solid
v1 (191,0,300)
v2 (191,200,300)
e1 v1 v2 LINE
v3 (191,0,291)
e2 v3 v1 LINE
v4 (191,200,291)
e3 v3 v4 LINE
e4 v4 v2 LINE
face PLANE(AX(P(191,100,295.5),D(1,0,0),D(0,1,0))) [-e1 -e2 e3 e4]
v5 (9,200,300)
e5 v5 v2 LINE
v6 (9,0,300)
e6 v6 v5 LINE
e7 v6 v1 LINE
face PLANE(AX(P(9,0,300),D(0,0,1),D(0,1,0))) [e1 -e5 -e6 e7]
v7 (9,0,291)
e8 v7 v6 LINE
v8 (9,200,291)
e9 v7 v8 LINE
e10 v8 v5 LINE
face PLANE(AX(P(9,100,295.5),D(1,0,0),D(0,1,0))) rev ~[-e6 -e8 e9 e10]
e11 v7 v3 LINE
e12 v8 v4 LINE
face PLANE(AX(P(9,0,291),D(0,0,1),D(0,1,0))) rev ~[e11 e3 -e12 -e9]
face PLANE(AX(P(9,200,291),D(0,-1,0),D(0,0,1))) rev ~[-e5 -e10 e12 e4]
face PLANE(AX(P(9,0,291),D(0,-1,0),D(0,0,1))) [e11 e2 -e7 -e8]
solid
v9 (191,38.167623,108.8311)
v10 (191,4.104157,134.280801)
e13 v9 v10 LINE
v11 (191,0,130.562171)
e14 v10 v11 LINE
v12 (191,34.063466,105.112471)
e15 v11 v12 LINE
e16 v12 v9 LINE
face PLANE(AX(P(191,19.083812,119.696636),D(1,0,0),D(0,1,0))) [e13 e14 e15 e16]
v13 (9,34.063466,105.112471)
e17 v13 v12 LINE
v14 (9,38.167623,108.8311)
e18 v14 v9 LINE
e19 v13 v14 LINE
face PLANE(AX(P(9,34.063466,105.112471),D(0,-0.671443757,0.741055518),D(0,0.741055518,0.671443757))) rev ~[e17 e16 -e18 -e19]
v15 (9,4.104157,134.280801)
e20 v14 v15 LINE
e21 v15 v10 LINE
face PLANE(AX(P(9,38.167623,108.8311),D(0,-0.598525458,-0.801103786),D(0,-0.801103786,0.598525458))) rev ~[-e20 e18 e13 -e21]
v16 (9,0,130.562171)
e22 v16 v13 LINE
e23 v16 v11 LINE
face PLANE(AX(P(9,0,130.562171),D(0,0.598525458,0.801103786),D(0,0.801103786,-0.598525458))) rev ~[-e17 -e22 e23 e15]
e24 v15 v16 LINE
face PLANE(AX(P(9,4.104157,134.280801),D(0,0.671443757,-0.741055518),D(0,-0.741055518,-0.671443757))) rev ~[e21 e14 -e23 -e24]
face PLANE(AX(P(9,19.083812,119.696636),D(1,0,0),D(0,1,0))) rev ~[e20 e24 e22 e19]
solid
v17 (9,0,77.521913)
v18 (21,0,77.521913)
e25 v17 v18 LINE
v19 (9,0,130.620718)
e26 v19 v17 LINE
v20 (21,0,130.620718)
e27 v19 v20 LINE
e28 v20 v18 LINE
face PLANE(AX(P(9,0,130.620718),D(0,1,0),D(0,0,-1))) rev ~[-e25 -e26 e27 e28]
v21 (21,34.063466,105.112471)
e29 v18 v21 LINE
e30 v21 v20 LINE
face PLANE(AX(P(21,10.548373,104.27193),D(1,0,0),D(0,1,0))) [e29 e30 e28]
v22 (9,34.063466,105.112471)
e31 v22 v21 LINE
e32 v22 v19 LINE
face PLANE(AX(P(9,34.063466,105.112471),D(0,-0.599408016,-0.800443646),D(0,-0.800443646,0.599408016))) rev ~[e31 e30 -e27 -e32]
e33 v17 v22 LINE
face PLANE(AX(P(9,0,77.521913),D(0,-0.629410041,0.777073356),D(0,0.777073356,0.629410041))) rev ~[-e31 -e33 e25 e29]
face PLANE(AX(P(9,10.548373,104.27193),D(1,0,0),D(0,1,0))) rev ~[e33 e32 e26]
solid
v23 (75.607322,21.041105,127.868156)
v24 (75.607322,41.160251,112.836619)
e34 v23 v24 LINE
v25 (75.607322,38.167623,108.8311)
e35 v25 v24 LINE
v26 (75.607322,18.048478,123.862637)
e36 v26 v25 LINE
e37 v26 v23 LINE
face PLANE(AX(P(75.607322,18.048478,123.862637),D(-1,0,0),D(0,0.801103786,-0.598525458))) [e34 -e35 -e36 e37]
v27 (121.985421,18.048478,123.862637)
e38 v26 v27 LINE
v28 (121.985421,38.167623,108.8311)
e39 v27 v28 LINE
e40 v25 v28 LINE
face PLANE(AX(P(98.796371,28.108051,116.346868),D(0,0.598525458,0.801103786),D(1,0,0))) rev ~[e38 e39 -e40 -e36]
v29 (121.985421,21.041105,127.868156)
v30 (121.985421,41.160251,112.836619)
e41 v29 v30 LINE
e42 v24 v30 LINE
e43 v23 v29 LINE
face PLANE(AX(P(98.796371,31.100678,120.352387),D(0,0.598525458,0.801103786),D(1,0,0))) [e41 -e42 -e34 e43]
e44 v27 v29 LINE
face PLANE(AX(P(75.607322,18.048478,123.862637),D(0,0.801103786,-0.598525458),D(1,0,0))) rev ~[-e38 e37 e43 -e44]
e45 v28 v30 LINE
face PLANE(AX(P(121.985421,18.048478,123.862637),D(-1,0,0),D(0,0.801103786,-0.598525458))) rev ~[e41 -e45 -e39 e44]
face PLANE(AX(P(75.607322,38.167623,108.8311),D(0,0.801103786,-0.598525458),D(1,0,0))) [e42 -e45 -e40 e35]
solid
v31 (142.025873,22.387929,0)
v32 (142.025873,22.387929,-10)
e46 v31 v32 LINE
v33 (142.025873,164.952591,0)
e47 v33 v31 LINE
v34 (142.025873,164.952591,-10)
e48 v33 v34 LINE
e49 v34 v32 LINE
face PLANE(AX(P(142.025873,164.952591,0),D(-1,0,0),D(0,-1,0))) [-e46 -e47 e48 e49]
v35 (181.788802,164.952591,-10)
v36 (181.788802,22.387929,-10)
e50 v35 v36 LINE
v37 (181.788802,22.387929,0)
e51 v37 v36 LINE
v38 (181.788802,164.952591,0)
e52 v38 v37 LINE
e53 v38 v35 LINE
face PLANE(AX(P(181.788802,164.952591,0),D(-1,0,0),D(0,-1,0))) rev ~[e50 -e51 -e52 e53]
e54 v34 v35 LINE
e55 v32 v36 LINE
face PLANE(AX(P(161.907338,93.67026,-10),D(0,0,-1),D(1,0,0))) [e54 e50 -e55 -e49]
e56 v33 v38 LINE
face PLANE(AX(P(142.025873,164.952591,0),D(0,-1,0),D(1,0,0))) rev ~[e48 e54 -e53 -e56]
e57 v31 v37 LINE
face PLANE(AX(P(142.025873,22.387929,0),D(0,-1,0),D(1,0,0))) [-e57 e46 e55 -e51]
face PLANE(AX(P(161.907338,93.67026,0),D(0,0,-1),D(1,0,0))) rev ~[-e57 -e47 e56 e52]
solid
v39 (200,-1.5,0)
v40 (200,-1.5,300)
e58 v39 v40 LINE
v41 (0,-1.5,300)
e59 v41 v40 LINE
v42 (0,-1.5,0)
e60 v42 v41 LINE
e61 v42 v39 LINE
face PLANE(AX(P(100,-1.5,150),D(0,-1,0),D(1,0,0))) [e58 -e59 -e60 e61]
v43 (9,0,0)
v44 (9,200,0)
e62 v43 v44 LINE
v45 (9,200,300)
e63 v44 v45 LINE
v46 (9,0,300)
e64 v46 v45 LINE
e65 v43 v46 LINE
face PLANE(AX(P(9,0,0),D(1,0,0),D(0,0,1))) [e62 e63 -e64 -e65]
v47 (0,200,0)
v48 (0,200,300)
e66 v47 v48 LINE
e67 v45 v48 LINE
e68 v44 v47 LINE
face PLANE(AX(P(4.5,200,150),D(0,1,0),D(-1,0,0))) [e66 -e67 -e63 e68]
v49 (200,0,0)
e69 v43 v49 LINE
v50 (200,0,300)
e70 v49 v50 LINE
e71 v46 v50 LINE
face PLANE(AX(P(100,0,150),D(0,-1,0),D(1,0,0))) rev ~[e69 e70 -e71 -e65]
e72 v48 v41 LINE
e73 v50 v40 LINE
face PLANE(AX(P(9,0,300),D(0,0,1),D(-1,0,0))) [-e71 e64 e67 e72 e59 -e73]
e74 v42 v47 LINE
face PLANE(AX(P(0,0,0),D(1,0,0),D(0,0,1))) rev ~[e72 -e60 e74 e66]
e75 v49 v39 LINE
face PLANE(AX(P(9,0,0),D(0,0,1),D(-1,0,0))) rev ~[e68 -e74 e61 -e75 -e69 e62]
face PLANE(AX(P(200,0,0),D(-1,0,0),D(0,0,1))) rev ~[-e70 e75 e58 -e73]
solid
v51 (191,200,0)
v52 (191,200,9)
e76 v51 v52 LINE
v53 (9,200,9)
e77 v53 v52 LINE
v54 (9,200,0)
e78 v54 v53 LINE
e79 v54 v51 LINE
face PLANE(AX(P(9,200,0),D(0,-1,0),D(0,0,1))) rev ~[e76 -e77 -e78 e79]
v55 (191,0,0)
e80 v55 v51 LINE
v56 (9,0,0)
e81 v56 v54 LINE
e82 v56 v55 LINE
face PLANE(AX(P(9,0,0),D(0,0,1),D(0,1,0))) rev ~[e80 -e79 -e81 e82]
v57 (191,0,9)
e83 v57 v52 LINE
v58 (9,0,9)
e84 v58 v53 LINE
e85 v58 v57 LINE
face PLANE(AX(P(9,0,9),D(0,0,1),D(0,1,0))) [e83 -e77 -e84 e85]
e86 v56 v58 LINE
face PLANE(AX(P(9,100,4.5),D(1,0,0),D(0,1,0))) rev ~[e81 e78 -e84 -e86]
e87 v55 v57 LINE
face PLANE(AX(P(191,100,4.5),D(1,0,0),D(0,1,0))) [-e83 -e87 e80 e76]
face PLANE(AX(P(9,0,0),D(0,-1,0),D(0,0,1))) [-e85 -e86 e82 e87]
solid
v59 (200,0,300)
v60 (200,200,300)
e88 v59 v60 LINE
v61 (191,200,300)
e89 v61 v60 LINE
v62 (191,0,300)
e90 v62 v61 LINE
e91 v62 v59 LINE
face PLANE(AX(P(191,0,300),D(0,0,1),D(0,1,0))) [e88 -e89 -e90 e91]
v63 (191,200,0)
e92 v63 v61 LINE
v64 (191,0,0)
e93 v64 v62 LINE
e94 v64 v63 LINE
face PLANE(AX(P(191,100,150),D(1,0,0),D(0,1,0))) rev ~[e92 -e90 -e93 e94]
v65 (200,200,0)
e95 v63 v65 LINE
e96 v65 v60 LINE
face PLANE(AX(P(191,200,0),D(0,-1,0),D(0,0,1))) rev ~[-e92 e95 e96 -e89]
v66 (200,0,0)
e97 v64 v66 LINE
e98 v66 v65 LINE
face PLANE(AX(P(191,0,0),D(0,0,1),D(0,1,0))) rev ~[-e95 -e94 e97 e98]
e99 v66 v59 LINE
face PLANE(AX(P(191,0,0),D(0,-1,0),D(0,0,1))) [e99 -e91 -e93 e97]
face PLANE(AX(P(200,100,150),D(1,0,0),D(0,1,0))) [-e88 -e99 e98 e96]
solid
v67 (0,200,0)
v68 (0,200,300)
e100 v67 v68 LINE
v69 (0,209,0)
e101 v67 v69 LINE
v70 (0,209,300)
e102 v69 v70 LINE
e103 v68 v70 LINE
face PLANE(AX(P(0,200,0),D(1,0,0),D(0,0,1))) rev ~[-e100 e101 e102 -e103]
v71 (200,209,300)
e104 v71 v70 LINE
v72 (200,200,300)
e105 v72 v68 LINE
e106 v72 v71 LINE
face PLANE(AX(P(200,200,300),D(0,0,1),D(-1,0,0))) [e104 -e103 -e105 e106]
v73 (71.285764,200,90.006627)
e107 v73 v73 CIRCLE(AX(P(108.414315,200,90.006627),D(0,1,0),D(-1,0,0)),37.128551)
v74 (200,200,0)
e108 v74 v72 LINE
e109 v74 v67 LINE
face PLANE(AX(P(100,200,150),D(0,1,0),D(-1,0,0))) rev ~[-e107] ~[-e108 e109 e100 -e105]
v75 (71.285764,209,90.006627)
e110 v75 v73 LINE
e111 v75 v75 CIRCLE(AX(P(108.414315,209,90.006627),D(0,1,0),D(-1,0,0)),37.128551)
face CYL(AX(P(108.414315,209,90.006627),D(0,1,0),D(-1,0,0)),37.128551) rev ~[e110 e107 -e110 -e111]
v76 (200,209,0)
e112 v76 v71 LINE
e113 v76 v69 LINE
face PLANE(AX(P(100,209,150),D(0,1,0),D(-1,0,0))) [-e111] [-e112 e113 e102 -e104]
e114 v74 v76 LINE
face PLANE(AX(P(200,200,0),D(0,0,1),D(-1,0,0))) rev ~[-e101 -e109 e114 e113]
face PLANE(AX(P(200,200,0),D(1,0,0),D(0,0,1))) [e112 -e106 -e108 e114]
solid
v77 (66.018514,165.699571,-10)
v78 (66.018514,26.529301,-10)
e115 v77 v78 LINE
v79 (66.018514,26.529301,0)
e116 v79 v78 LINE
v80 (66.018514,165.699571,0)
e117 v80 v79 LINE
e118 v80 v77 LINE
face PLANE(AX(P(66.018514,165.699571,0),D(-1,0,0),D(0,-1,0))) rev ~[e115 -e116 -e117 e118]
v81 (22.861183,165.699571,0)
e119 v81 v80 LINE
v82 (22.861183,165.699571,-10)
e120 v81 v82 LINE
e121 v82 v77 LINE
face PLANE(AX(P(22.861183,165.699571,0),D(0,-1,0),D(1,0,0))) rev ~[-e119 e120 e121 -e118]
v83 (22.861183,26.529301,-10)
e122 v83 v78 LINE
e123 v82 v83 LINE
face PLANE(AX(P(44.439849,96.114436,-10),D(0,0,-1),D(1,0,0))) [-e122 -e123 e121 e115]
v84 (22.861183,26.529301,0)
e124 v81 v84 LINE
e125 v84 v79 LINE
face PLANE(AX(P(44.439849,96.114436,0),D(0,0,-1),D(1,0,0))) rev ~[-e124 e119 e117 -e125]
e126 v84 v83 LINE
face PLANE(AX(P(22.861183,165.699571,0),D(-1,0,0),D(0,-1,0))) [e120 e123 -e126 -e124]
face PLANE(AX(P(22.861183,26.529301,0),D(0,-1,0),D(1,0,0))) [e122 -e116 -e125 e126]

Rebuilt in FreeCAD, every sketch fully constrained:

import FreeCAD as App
import Part
import Sketcher
Q = App.Units.Quantity


def add_polygon(sketch, points):
    """Adds a closed chain of lines whose ends are joined by coincident constraints."""
    first, n = sketch.GeometryCount, len(points)
    for a, b in zip(points, points[1:] + points[:1]):
        sketch.addGeometry(Part.LineSegment(App.Vector(*a, 0), App.Vector(*b, 0)), False)
    for i in range(n):
        sketch.addConstraint(Sketcher.Constraint("Coincident", first + i, 2, first + (i + 1) % n, 1))

doc = App.newDocument("Part")
body = doc.addObject("PartDesign::Body", "Body")

# Sketch on XZ plane
sketch1 = doc.addObject("Sketcher::SketchObject", "Sketch")
body.addObject(sketch1)
sketch1.AttachmentSupport = (doc.XZ_Plane, [""])
sketch1.MapMode = "FlatFace"
add_polygon(sketch1, [(0, 300), (0, 0), (200, 0), (200, 300)])  # lines 0-3
sketch1.addConstraint(Sketcher.Constraint("Vertical", 0))
sketch1.addConstraint(Sketcher.Constraint("Horizontal", 1))
sketch1.addConstraint(Sketcher.Constraint("Vertical", 2))
sketch1.addConstraint(Sketcher.Constraint("Horizontal", 3))
sketch1.addConstraint(Sketcher.Constraint("Coincident", 0, 2, -1, 1))
sketch1.addConstraint(Sketcher.Constraint("DistanceX", 1, 1, 1, 2, Q("200 mm")))
sketch1.addConstraint(Sketcher.Constraint("DistanceY", 0, 2, 0, 1, Q("300 mm")))
pad1 = doc.addObject("PartDesign::Pad", "Pad")
body.addObject(pad1)
pad1.Profile = sketch1
pad1.Length = 1.5

# Sketch on XZ plane
sketch2 = doc.addObject("Sketcher::SketchObject", "Sketch001")
body.addObject(sketch2)
sketch2.AttachmentSupport = (doc.XZ_Plane, [""])
sketch2.MapMode = "FlatFace"
add_polygon(sketch2, [(9, 300), (9, 0), (0, 0), (0, 300)])  # lines 0-3
sketch2.addConstraint(Sketcher.Constraint("Vertical", 0))
sketch2.addConstraint(Sketcher.Constraint("Horizontal", 1))
sketch2.addConstraint(Sketcher.Constraint("Vertical", 2))
sketch2.addConstraint(Sketcher.Constraint("Horizontal", 3))
sketch2.addConstraint(Sketcher.Constraint("Coincident", 1, 2, -1, 1))
sketch2.addConstraint(Sketcher.Constraint("DistanceX", 1, 2, 1, 1, Q("9 mm")))
sketch2.addConstraint(Sketcher.Constraint("DistanceY", 0, 2, 0, 1, Q("300 mm")))
pad2 = doc.addObject("PartDesign::Pad", "Pad001")
body.addObject(pad2)
pad2.Profile = sketch2
pad2.Length = 200
pad2.Reversed = True
body2 = doc.addObject("PartDesign::Body", "Body001")

# Sketch on YZ plane
sketch3 = doc.addObject("Sketcher::SketchObject", "Sketch002")
body2.addObject(sketch3)
sketch3.AttachmentSupport = (doc.getObject("YZ_Plane001"), [""])
sketch3.MapMode = "FlatFace"
sketch3.AttachmentOffset = App.Placement(App.Vector(0, 0, 9), App.Rotation())
add_polygon(sketch3, [(34, 105), (0, 131), (0, 78)])  # lines 0-2
sketch3.addConstraint(Sketcher.Constraint("Vertical", 1))
sketch3.addConstraint(Sketcher.Constraint("PointOnObject", 0, 2, -2))
sketch3.addConstraint(Sketcher.Constraint("DistanceY", 1, 2, 1, 1, Q("53.098805 mm")))
sketch3.addConstraint(Sketcher.Constraint("DistanceY", -1, 1, 0, 2, Q("130.620718 mm")))
sketch3.addConstraint(Sketcher.Constraint("DistanceY", -1, 1, 2, 2, Q("105.112471 mm")))
sketch3.addConstraint(Sketcher.Constraint("Distance", 0, Q("42.555733 mm")))
pad3 = doc.addObject("PartDesign::Pad", "Pad002")
body2.addObject(pad3)
pad3.Profile = sketch3
pad3.Length = 12
body3 = doc.addObject("PartDesign::Body", "Body002")

# Sketch on YZ plane
sketch4 = doc.addObject("Sketcher::SketchObject", "Sketch003")
body3.addObject(sketch4)
sketch4.AttachmentSupport = (doc.getObject("YZ_Plane002"), [""])
sketch4.MapMode = "FlatFace"
sketch4.AttachmentOffset = App.Placement(App.Vector(0, 0, 9), App.Rotation())
add_polygon(sketch4, [(0, 131), (34, 105), (38, 109), (4, 134)])  # lines 0-3
sketch4.addConstraint(Sketcher.Constraint("PointOnObject", 3, 2, -2))
sketch4.addConstraint(Sketcher.Constraint("Parallel", 0, 2))
sketch4.addConstraint(Sketcher.Constraint("Parallel", 1, 3))
sketch4.addConstraint(Sketcher.Constraint("DistanceY", -1, 1, 1, 2, Q("108.8311 mm")))
sketch4.addConstraint(Sketcher.Constraint("DistanceY", -1, 1, 2, 2, Q("134.280801 mm")))
sketch4.addConstraint(Sketcher.Constraint("Distance", 1, Q("5.538259 mm")))
sketch4.addConstraint(Sketcher.Constraint("DistanceY", -1, 1, 0, 2, Q("105.112471 mm")))
sketch4.addConstraint(Sketcher.Constraint("DistanceX", 2, 2, 0, 2, Q("29.959308 mm")))
pad4 = doc.addObject("PartDesign::Pad", "Pad003")
body3.addObject(pad4)
pad4.Profile = sketch4
pad4.Length = 182
body4 = doc.addObject("PartDesign::Body", "Body003")

# Sketch on an angled plane
sketch5 = doc.addObject("Sketcher::SketchObject", "Sketch004")
body4.addObject(sketch5)
sketch5.Placement = App.Placement(App.Vector(0, 65.855338, 88.144889), App.Rotation(App.Vector(1, 0, 0), App.Vector(0, 0.801103786, -0.598525458), App.Vector(0, 0.598525458, 0.801103786), "ZXY"))
add_polygon(sketch5, [(76, -35), (76, -60), (122, -60), (122, -35)])  # lines 0-3
sketch5.addConstraint(Sketcher.Constraint("Vertical", 0))
sketch5.addConstraint(Sketcher.Constraint("Horizontal", 1))
sketch5.addConstraint(Sketcher.Constraint("Vertical", 2))
sketch5.addConstraint(Sketcher.Constraint("Horizontal", 3))
sketch5.addConstraint(Sketcher.Constraint("DistanceX", 1, 1, 1, 2, Q("46.378098 mm")))
sketch5.addConstraint(Sketcher.Constraint("DistanceY", 0, 2, 0, 1, Q("25.114281 mm")))
sketch5.addConstraint(Sketcher.Constraint("DistanceX", -1, 1, 1, 2, Q("121.985421 mm")))
sketch5.addConstraint(Sketcher.Constraint("DistanceY", 0, 2, -1, 1, Q("59.676237 mm")))
pad5 = doc.addObject("PartDesign::Pad", "Pad004")
body4.addObject(pad5)
pad5.Profile = sketch5
pad5.Length = 5
body5 = doc.addObject("PartDesign::Body", "Body004")

# Sketch on YZ plane
sketch6 = doc.addObject("Sketcher::SketchObject", "Sketch005")
body5.addObject(sketch6)
sketch6.AttachmentSupport = (doc.getObject("YZ_Plane004"), [""])
sketch6.MapMode = "FlatFace"
sketch6.AttachmentOffset = App.Placement(App.Vector(0, 0, 9), App.Rotation())
add_polygon(sketch6, [(0, 300), (0, 291), (200, 291), (200, 300)])  # lines 0-3
sketch6.addConstraint(Sketcher.Constraint("Vertical", 0))
sketch6.addConstraint(Sketcher.Constraint("Horizontal", 1))
sketch6.addConstraint(Sketcher.Constraint("Vertical", 2))
sketch6.addConstraint(Sketcher.Constraint("Horizontal", 3))
sketch6.addConstraint(Sketcher.Constraint("PointOnObject", 0, 2, -2))
sketch6.addConstraint(Sketcher.Constraint("DistanceX", 1, 1, 1, 2, Q("200 mm")))
sketch6.addConstraint(Sketcher.Constraint("DistanceY", 0, 2, 0, 1, Q("9 mm")))
sketch6.addConstraint(Sketcher.Constraint("DistanceY", -1, 1, 0, 2, Q("291 mm")))
pad6 = doc.addObject("PartDesign::Pad", "Pad005")
body5.addObject(pad6)
pad6.Profile = sketch6
pad6.Length = 182
body6 = doc.addObject("PartDesign::Body", "Body005")

# Sketch on YZ plane
sketch7 = doc.addObject("Sketcher::SketchObject", "Sketch006")
body6.addObject(sketch7)
sketch7.AttachmentSupport = (doc.getObject("YZ_Plane005"), [""])
sketch7.MapMode = "FlatFace"
sketch7.AttachmentOffset = App.Placement(App.Vector(0, 0, 9), App.Rotation())
add_polygon(sketch7, [(0, 9), (0, 0), (200, 0), (200, 9)])  # lines 0-3
sketch7.addConstraint(Sketcher.Constraint("Vertical", 0))
sketch7.addConstraint(Sketcher.Constraint("Horizontal", 1))
sketch7.addConstraint(Sketcher.Constraint("Vertical", 2))
sketch7.addConstraint(Sketcher.Constraint("Horizontal", 3))
sketch7.addConstraint(Sketcher.Constraint("Coincident", 0, 2, -1, 1))
sketch7.addConstraint(Sketcher.Constraint("DistanceX", 1, 1, 1, 2, Q("200 mm")))
sketch7.addConstraint(Sketcher.Constraint("DistanceY", 0, 2, 0, 1, Q("9 mm")))
pad7 = doc.addObject("PartDesign::Pad", "Pad006")
body6.addObject(pad7)
pad7.Profile = sketch7
pad7.Length = 182
body7 = doc.addObject("PartDesign::Body", "Body006")

# Sketch on YZ plane
sketch8 = doc.addObject("Sketcher::SketchObject", "Sketch007")
body7.addObject(sketch8)
sketch8.AttachmentSupport = (doc.getObject("YZ_Plane006"), [""])
sketch8.MapMode = "FlatFace"
sketch8.AttachmentOffset = App.Placement(App.Vector(0, 0, 191), App.Rotation())
add_polygon(sketch8, [(0, 300), (0, 0), (200, 0), (200, 300)])  # lines 0-3
sketch8.addConstraint(Sketcher.Constraint("Vertical", 0))
sketch8.addConstraint(Sketcher.Constraint("Horizontal", 1))
sketch8.addConstraint(Sketcher.Constraint("Vertical", 2))
sketch8.addConstraint(Sketcher.Constraint("Horizontal", 3))
sketch8.addConstraint(Sketcher.Constraint("Coincident", 0, 2, -1, 1))
sketch8.addConstraint(Sketcher.Constraint("DistanceX", 1, 1, 1, 2, Q("200 mm")))
sketch8.addConstraint(Sketcher.Constraint("DistanceY", 0, 2, 0, 1, Q("300 mm")))
pad8 = doc.addObject("PartDesign::Pad", "Pad007")
body7.addObject(pad8)
pad8.Profile = sketch8
pad8.Length = 9
body8 = doc.addObject("PartDesign::Body", "Body007")

# Sketch on XZ plane
sketch9 = doc.addObject("Sketcher::SketchObject", "Sketch008")
body8.addObject(sketch9)
sketch9.AttachmentSupport = (doc.getObject("XZ_Plane007"), [""])
sketch9.MapMode = "FlatFace"
sketch9.AttachmentOffset = App.Placement(App.Vector(0, 0, -200), App.Rotation())
add_polygon(sketch9, [(200, 300), (200, 0), (0, 0), (0, 300)])  # lines 0-3
sketch9.addConstraint(Sketcher.Constraint("Vertical", 0))
sketch9.addConstraint(Sketcher.Constraint("Horizontal", 1))
sketch9.addConstraint(Sketcher.Constraint("Vertical", 2))
sketch9.addConstraint(Sketcher.Constraint("Horizontal", 3))
sketch9.addConstraint(Sketcher.Constraint("Coincident", 1, 2, -1, 1))
sketch9.addConstraint(Sketcher.Constraint("DistanceX", 1, 2, 1, 1, Q("200 mm")))
sketch9.addConstraint(Sketcher.Constraint("DistanceY", 0, 2, 0, 1, Q("300 mm")))
pad9 = doc.addObject("PartDesign::Pad", "Pad008")
body8.addObject(pad9)
pad9.Profile = sketch9
pad9.Length = 9
pad9.Reversed = True

# Sketch on XZ plane
sketch10 = doc.addObject("Sketcher::SketchObject", "Sketch009")
body8.addObject(sketch10)
sketch10.AttachmentSupport = (doc.getObject("XZ_Plane007"), [""])
sketch10.MapMode = "FlatFace"
sketch10.AttachmentOffset = App.Placement(App.Vector(0, 0, -209), App.Rotation())
sketch10.addGeometry(Part.Circle(App.Vector(108, 90, 0), App.Vector(0, 0, 1), 37), False)
sketch10.addConstraint(Sketcher.Constraint("Diameter", 0, Q("74.257102 mm")))
sketch10.addConstraint(Sketcher.Constraint("DistanceX", -1, 1, 0, 3, Q("108.414315 mm")))
sketch10.addConstraint(Sketcher.Constraint("DistanceY", -1, 1, 0, 3, Q("90.006627 mm")))
pocket1 = doc.addObject("PartDesign::Pocket", "Pocket")
body8.addObject(pocket1)
pocket1.Profile = sketch10
pocket1.Length = 9
pocket1.Reversed = True
body9 = doc.addObject("PartDesign::Body", "Body008")

# Sketch on XY plane
sketch11 = doc.addObject("Sketcher::SketchObject", "Sketch010")
body9.addObject(sketch11)
sketch11.AttachmentSupport = (doc.getObject("XY_Plane008"), [""])
sketch11.MapMode = "FlatFace"
add_polygon(sketch11, [(142, 22), (142, 165), (182, 165), (182, 22)])  # lines 0-3
sketch11.addConstraint(Sketcher.Constraint("Vertical", 0))
sketch11.addConstraint(Sketcher.Constraint("Horizontal", 1))
sketch11.addConstraint(Sketcher.Constraint("Vertical", 2))
sketch11.addConstraint(Sketcher.Constraint("Horizontal", 3))
sketch11.addConstraint(Sketcher.Constraint("DistanceX", 1, 1, 1, 2, Q("39.762929 mm")))
sketch11.addConstraint(Sketcher.Constraint("DistanceY", 0, 1, 0, 2, Q("142.564662 mm")))
sketch11.addConstraint(Sketcher.Constraint("DistanceY", -1, 1, 0, 2, Q("164.952591 mm")))
sketch11.addConstraint(Sketcher.Constraint("DistanceX", -1, 1, 0, 2, Q("142.025873 mm")))
pad10 = doc.addObject("PartDesign::Pad", "Pad009")
body9.addObject(pad10)
pad10.Profile = sketch11
pad10.Length = 10
pad10.Reversed = True
body10 = doc.addObject("PartDesign::Body", "Body009")

# Sketch on XY plane
sketch12 = doc.addObject("Sketcher::SketchObject", "Sketch011")
body10.addObject(sketch12)
sketch12.AttachmentSupport = (doc.getObject("XY_Plane009"), [""])
sketch12.MapMode = "FlatFace"
add_polygon(sketch12, [(23, 27), (23, 166), (66, 166), (66, 27)])  # lines 0-3
sketch12.addConstraint(Sketcher.Constraint("Vertical", 0))
sketch12.addConstraint(Sketcher.Constraint("Horizontal", 1))
sketch12.addConstraint(Sketcher.Constraint("Vertical", 2))
sketch12.addConstraint(Sketcher.Constraint("Horizontal", 3))
sketch12.addConstraint(Sketcher.Constraint("DistanceX", 1, 1, 1, 2, Q("43.157332 mm")))
sketch12.addConstraint(Sketcher.Constraint("DistanceY", 0, 1, 0, 2, Q("139.17027 mm")))
sketch12.addConstraint(Sketcher.Constraint("DistanceY", -1, 1, 2, 2, Q("26.529301 mm")))
sketch12.addConstraint(Sketcher.Constraint("DistanceX", -1, 1, 0, 2, Q("22.861183 mm")))
pad11 = doc.addObject("PartDesign::Pad", "Pad010")
body10.addObject(pad11)
pad11.Profile = sketch12
pad11.Length = 10
pad11.Reversed = True

doc.recompute()
